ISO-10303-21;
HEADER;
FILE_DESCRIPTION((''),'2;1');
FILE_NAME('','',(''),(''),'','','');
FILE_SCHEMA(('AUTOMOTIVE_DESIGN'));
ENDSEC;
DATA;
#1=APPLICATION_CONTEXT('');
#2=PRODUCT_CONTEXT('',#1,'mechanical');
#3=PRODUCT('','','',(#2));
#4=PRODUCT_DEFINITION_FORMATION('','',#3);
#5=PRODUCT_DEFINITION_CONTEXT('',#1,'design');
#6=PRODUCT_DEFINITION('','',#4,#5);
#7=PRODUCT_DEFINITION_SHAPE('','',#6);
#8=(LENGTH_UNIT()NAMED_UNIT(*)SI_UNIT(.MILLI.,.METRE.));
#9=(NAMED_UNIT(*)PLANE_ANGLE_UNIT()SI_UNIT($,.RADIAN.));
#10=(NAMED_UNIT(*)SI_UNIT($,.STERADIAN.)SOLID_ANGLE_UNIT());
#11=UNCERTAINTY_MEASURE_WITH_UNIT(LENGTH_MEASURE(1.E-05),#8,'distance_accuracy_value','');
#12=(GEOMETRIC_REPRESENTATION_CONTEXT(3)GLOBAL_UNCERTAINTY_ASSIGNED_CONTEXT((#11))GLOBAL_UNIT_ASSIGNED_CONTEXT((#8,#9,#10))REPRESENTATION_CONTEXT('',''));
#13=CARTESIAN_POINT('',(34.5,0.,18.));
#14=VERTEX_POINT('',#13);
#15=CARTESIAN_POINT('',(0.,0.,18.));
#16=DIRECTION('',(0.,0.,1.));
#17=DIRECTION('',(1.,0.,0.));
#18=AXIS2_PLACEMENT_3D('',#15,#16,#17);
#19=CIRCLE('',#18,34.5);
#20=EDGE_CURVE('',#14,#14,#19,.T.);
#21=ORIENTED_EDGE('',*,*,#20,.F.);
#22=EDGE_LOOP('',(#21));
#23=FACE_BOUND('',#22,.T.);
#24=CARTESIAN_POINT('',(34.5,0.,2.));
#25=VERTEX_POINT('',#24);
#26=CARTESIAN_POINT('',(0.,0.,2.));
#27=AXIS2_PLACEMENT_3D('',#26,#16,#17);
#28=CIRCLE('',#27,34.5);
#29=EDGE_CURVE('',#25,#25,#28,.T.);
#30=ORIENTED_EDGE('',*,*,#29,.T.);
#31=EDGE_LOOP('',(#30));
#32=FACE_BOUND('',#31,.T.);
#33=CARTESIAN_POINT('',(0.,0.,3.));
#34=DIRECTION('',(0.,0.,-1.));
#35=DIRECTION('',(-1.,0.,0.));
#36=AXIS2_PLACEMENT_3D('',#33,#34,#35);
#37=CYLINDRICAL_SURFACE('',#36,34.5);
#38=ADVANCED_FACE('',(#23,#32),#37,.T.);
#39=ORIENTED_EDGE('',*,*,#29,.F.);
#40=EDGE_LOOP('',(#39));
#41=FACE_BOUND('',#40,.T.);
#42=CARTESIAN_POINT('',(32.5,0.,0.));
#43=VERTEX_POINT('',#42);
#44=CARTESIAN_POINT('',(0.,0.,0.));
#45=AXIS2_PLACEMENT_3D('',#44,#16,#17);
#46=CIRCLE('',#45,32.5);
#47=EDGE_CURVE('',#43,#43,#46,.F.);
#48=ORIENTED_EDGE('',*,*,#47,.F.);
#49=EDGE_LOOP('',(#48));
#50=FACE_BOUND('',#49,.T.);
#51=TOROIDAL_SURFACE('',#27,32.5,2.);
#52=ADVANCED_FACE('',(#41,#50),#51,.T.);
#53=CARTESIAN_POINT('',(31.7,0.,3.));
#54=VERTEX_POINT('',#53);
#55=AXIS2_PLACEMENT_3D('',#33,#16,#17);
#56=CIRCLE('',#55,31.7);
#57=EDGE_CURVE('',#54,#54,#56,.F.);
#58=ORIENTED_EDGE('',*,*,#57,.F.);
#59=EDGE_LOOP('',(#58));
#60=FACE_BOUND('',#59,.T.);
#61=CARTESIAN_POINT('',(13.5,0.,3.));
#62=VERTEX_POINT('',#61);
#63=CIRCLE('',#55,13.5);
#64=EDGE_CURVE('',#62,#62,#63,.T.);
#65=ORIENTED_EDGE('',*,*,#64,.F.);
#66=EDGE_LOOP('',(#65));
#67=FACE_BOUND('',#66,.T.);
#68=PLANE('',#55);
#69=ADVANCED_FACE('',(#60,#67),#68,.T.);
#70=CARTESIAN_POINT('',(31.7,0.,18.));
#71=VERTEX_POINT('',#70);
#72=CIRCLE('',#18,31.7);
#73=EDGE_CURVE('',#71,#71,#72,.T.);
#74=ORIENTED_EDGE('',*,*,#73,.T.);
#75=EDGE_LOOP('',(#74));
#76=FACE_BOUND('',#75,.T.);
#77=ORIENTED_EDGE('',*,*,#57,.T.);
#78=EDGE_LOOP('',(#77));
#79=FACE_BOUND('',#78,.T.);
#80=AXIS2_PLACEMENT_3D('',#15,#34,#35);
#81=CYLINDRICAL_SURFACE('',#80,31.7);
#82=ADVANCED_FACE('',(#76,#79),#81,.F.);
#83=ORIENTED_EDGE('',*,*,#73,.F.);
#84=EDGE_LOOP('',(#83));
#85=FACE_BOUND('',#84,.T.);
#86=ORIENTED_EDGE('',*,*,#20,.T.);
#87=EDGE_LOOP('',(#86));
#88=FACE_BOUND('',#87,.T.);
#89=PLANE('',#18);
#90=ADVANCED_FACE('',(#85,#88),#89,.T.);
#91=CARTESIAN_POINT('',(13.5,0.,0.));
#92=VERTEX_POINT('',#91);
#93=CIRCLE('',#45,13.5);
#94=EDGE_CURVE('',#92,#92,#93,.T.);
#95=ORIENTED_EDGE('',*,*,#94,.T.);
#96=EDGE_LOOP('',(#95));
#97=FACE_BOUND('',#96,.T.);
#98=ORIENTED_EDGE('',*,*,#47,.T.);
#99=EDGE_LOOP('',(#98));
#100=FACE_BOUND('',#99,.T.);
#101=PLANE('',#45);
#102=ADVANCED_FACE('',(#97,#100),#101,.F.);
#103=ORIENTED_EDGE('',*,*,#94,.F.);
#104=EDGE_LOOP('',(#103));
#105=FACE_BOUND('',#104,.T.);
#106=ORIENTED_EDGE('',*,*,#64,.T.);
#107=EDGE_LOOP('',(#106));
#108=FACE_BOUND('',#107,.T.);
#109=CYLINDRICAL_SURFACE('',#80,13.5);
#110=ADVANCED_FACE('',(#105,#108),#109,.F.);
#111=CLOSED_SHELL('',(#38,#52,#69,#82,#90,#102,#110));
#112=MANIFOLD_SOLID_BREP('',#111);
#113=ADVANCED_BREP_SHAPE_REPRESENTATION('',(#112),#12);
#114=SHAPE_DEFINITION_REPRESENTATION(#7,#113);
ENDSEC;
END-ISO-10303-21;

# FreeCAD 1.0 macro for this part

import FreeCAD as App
import Part
import Sketcher
from FreeCAD import Vector
Q = App.Units.Quantity


def edges_at(feature, points):
    """Names of the edges that pass closest to the given points."""
    edges = feature.Shape.Edges
    near = lambda p: min(range(len(edges)), key=lambda i: edges[i].distToShape(Part.Vertex(*p))[0])
    return sorted({f"Edge{near(p) + 1}" for p in points})

doc = App.newDocument("Part")
body = doc.addObject("PartDesign::Body", "Body")

sketch1 = body.newObject("Sketcher::SketchObject", "Sketch")
sketch1.AttachmentSupport = (doc.getObject("XY_Plane"), [""])
sketch1.MapMode = "FlatFace"
sketch1.addGeometry(Part.Circle(Vector(0, 0, 0), Vector(0, 0, 1), 34.5), False)
sketch1.addConstraint([
    Sketcher.Constraint("Coincident", 0, 3, -1, 1),
    Sketcher.Constraint("Diameter", 0, Q("69 mm")),
])
pad1 = body.newObject("PartDesign::Pad", "Pad")
pad1.Profile = sketch1
pad1.Length = 3

sketch2 = body.newObject("Sketcher::SketchObject", "Sketch001")
sketch2.AttachmentSupport = (doc.getObject("XY_Plane"), [""])
sketch2.MapMode = "FlatFace"
sketch2.AttachmentOffset = App.Placement(Vector(0, 0, 3), App.Rotation())
sketch2.addGeometry([
    Part.Circle(Vector(0, 0, 0), Vector(0, 0, 1), 34.5),
    Part.Circle(Vector(0, 0, 0), Vector(0, 0, 1), 31.7),
], False)
sketch2.addConstraint([
    Sketcher.Constraint("Coincident", 0, 3, -1, 1),
    Sketcher.Constraint("Coincident", 1, 3, -1, 1),
    Sketcher.Constraint("Diameter", 0, Q("69 mm")),
    Sketcher.Constraint("Diameter", 1, Q("63.4 mm")),
])
pad2 = body.newObject("PartDesign::Pad", "Pad001")
pad2.Profile = sketch2
pad2.Length = 15

sketch3 = body.newObject("Sketcher::SketchObject", "Sketch002")
sketch3.AttachmentSupport = (doc.getObject("XY_Plane"), [""])
sketch3.MapMode = "FlatFace"
sketch3.addGeometry(Part.Circle(Vector(0, 0, 0), Vector(0, 0, 1), 13.5), False)
sketch3.addConstraint([
    Sketcher.Constraint("Coincident", 0, 3, -1, 1),
    Sketcher.Constraint("Diameter", 0, Q("27 mm")),
])
pocket1 = body.newObject("PartDesign::Pocket", "Pocket")
pocket1.Profile = sketch3
pocket1.Type = "ThroughAll"
pocket1.Midplane = True
doc.recompute()

fillet = body.newObject("PartDesign::Fillet", "Fillet")
fillet.Base = (pocket1, edges_at(pocket1, [(-34.5, 0, 0)]))
fillet.Radius = 2

doc.recompute()
